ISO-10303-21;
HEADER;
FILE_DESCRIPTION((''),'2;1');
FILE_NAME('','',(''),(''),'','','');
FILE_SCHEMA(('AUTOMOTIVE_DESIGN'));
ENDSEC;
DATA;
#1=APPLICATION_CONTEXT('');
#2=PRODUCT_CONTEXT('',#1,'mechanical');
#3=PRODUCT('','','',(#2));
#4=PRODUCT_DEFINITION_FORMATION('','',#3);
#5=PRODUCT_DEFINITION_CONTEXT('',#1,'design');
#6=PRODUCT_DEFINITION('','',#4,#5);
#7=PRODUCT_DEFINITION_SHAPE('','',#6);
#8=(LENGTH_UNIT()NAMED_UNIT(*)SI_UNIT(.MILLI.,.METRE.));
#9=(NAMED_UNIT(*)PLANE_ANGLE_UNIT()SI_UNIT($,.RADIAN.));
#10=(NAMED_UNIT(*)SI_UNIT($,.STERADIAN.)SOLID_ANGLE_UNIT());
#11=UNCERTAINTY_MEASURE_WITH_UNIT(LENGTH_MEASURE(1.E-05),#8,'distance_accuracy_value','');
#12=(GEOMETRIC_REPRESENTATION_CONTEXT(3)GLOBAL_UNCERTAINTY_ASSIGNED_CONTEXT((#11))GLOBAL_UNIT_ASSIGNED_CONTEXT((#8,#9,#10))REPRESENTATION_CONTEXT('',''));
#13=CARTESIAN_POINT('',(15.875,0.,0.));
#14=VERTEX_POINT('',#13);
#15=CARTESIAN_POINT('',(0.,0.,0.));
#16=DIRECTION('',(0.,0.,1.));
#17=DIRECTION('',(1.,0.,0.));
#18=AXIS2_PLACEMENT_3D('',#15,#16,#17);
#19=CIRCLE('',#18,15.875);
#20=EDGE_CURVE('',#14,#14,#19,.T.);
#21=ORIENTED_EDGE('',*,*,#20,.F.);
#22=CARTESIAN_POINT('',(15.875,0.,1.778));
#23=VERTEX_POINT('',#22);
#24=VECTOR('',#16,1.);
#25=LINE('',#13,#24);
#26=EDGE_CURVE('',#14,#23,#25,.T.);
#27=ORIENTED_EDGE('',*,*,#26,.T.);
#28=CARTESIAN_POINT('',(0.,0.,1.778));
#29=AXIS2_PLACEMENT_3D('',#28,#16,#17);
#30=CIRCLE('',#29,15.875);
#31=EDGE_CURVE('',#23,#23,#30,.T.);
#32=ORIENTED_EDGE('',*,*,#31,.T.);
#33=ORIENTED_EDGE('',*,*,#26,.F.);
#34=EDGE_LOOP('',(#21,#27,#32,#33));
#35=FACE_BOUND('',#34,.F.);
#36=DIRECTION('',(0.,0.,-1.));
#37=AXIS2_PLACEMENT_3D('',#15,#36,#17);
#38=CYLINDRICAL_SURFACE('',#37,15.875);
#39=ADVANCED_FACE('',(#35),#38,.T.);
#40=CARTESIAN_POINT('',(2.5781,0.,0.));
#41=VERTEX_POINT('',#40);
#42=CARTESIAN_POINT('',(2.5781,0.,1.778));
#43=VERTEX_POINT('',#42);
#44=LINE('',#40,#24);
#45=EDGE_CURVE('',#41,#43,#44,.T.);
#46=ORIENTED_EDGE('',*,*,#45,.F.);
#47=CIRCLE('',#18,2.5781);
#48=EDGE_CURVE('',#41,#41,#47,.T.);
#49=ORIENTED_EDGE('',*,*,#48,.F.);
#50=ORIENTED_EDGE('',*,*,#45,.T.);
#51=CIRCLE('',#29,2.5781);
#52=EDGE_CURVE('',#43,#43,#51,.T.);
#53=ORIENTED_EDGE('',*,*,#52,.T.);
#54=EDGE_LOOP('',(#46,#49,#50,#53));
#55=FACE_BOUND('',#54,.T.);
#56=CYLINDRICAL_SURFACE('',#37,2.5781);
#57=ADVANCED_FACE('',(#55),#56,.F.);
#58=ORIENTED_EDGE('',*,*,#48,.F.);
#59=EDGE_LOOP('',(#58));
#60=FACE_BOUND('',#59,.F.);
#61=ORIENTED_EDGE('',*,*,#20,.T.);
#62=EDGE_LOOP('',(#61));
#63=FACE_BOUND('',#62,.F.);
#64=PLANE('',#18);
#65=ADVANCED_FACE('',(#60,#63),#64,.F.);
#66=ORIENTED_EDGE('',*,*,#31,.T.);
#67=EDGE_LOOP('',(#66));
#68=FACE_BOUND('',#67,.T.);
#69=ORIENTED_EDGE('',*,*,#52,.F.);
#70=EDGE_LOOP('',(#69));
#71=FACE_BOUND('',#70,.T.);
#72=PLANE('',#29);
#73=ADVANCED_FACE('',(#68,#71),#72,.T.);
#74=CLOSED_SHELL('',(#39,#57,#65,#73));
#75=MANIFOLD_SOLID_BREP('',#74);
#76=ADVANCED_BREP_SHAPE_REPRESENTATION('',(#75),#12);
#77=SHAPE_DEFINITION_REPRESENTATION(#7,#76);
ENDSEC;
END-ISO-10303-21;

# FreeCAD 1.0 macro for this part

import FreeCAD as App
import Part
import Sketcher

V = App.Vector
Q = App.Units.Quantity

doc = App.newDocument("Part")
body = doc.addObject("PartDesign::Body", "Body")

sketch1 = doc.addObject("Sketcher::SketchObject", "Sketch")
body.addObject(sketch1)
sketch1.AttachmentSupport = (doc.XY_Plane, [""])
sketch1.MapMode = "FlatFace"
sketch1.addGeometry([
    Part.Circle(V(0, 0, 0), V(0, 0, 1), 15.9),
    Part.Circle(V(0, 0, 0), V(0, 0, 1), 2.6),
], False)
sketch1.addConstraint([
    Sketcher.Constraint("Coincident", 0, 3, -1, 1),
    Sketcher.Constraint("Coincident", 1, 3, -1, 1),
    Sketcher.Constraint("Diameter", 0, Q("1.25 in")),
    Sketcher.Constraint("Diameter", 1, Q("0.203 in")),
])
pad1 = doc.addObject("PartDesign::Pad", "Pad")
body.addObject(pad1)
pad1.Profile = sketch1
pad1.Length = Q("0.07 in")

doc.recompute()
